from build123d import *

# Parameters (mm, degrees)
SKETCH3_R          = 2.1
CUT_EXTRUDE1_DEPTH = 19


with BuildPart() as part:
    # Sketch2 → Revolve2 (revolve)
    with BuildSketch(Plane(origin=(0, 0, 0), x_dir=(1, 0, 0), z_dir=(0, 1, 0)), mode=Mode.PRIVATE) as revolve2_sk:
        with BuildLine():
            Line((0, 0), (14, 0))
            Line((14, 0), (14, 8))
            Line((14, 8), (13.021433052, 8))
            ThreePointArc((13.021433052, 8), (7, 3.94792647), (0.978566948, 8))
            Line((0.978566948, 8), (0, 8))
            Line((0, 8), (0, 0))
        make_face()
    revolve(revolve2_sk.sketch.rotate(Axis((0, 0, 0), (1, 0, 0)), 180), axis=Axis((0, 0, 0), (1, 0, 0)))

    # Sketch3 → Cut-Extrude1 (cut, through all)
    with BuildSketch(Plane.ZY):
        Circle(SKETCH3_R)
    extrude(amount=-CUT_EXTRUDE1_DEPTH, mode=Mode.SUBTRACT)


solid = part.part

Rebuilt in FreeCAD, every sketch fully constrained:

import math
import FreeCAD as App
import Part
import Sketcher
Q = App.Units.Quantity

doc = App.newDocument("Part")
body = doc.addObject("PartDesign::Body", "Body")

# Sketch on XZ plane
sketch1 = doc.addObject("Sketcher::SketchObject", "Sketch")
body.addObject(sketch1)
sketch1.AttachmentSupport = (doc.XZ_Plane, [""])
sketch1.MapMode = "FlatFace"
sketch1.addGeometry(Part.LineSegment(App.Vector(0, 0, 0), App.Vector(14, 0, 0)), False)
sketch1.addGeometry(Part.LineSegment(App.Vector(14, 0, 0), App.Vector(14, -8, 0)), False)
sketch1.addGeometry(Part.LineSegment(App.Vector(14, -8, 0), App.Vector(13, -8, 0)), False)
sketch1.addGeometry(Part.ArcOfCircle(Part.Circle(App.Vector(7, -10.4, 0), App.Vector(0, 0, 1), 6.5), math.radians(22), math.radians(158)), False)
sketch1.addGeometry(Part.LineSegment(App.Vector(1, -8, 0), App.Vector(0, -8, 0)), False)
sketch1.addGeometry(Part.LineSegment(App.Vector(0, -8, 0), App.Vector(0, 0, 0)), False)
sketch1.addConstraint(Sketcher.Constraint("Coincident", 0, 2, 1, 1))
sketch1.addConstraint(Sketcher.Constraint("Coincident", 1, 2, 2, 1))
sketch1.addConstraint(Sketcher.Constraint("Coincident", 2, 2, 3, 1))
sketch1.addConstraint(Sketcher.Constraint("Coincident", 3, 2, 4, 1))
sketch1.addConstraint(Sketcher.Constraint("Coincident", 4, 2, 5, 1))
sketch1.addConstraint(Sketcher.Constraint("Coincident", 5, 2, 0, 1))
sketch1.addConstraint(Sketcher.Constraint("Horizontal", 0))
sketch1.addConstraint(Sketcher.Constraint("Vertical", 1))
sketch1.addConstraint(Sketcher.Constraint("Horizontal", 2))
sketch1.addConstraint(Sketcher.Constraint("Horizontal", 4))
sketch1.addConstraint(Sketcher.Constraint("Vertical", 5))
sketch1.addConstraint(Sketcher.Constraint("Coincident", 5, 2, -1, 1))
sketch1.addConstraint(Sketcher.Constraint("Horizontal", 2, 2, 3, 2))
sketch1.addConstraint(Sketcher.Constraint("Equal", 2, 4))
sketch1.addConstraint(Sketcher.Constraint("Radius", 3, Q("6.5 mm")))
sketch1.addConstraint(Sketcher.Constraint("DistanceX", 0, 1, 0, 2, Q("14 mm")))
sketch1.addConstraint(Sketcher.Constraint("DistanceY", 1, 2, 1, 1, Q("8 mm")))
sketch1.addConstraint(Sketcher.Constraint("DistanceX", 2, 2, 2, 1, Q("0.978567 mm")))
revolution = doc.addObject("PartDesign::Revolution", "Revolution")
body.addObject(revolution)
revolution.Profile = sketch1
revolution.ReferenceAxis = (sketch1, ["H_Axis"])
revolution.Angle = 360

# Sketch on YZ plane
sketch2 = doc.addObject("Sketcher::SketchObject", "Sketch001")
body.addObject(sketch2)
sketch2.AttachmentSupport = (doc.YZ_Plane, [""])
sketch2.MapMode = "FlatFace"
sketch2.addGeometry(Part.Circle(App.Vector(0, 0, 0), App.Vector(0, 0, 1), 2.1), False)
sketch2.addConstraint(Sketcher.Constraint("Coincident", 0, 3, -1, 1))
sketch2.addConstraint(Sketcher.Constraint("Diameter", 0, Q("4.2 mm")))
pocket1 = doc.addObject("PartDesign::Pocket", "Pocket")
body.addObject(pocket1)
pocket1.Profile = sketch2
pocket1.Type = "ThroughAll"
pocket1.Reversed = True

doc.recompute()
